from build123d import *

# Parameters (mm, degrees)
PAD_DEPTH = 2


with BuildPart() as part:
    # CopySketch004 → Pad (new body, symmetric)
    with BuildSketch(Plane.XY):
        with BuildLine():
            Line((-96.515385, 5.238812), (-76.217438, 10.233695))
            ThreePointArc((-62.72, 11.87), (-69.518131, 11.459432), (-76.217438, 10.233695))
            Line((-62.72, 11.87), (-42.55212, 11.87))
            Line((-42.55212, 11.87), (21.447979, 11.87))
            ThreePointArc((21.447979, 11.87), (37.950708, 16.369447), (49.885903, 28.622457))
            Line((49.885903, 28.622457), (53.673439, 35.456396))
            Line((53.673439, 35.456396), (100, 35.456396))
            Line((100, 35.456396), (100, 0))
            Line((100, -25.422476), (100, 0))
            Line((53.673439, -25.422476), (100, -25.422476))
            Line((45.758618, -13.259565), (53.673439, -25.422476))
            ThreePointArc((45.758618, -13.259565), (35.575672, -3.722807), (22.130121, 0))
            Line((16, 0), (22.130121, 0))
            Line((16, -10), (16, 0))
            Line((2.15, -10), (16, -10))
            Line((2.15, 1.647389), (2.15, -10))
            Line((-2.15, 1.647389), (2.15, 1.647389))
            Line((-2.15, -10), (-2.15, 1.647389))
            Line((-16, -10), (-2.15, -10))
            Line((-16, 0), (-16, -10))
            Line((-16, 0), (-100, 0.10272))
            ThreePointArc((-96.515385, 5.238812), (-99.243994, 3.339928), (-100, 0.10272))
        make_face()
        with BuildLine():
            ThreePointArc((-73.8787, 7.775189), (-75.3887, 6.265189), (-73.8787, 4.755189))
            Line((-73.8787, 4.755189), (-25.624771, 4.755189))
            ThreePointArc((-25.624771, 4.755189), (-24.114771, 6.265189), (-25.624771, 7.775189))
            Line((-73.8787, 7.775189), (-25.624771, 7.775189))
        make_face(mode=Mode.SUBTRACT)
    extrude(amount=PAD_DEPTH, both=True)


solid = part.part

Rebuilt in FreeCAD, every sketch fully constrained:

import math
import FreeCAD as App
import Part
import Sketcher

V = App.Vector

doc = App.newDocument("Part")
body = doc.addObject("PartDesign::Body", "Body")

sketch1 = doc.addObject("Sketcher::SketchObject", "Sketch")
body.addObject(sketch1)
sketch1.AttachmentSupport = (doc.XY_Plane, [""])
sketch1.MapMode = "FlatFace"
sketch1.addGeometry([
    Part.LineSegment(V(-76.217438, 10.233695, 0), V(-96.515385, 5.238812, 0)),
    Part.ArcOfCircle(Part.Circle(V(-95.407615, 0.737112, 0), V(0, 0, 1), 4.635996), math.radians(103.824565), math.radians(187.865064)),
    Part.LineSegment(V(-100, 0.10272, 0), V(-16, 0, 0)),
    Part.LineSegment(V(-16, 0, 0), V(-16, -10, 0)),
    Part.LineSegment(V(-16, -10, 0), V(-2.15, -10, 0)),
    Part.LineSegment(V(-2.15, -10, 0), V(-2.15, 1.647389, 0)),
    Part.LineSegment(V(-2.15, 1.647389, 0), V(2.15, 1.647389, 0)),
    Part.LineSegment(V(2.15, 1.647389, 0), V(2.15, -10, 0)),
    Part.LineSegment(V(2.15, -10, 0), V(16, -10, 0)),
    Part.LineSegment(V(16, -10, 0), V(16, 0, 0)),
    Part.LineSegment(V(16, 0, 0), V(22.130121, 0, 0)),
    Part.ArcOfCircle(Part.Circle(V(21.28796, -29.183458, 0), V(0, 0, 1), 29.195607), math.radians(33.053429), math.radians(88.347048)),
    Part.LineSegment(V(45.758618, -13.259565, 0), V(53.673439, -25.422476, 0)),
    Part.LineSegment(V(53.673439, -25.422476, 0), V(100, -25.422476, 0)),
    Part.LineSegment(V(100, -25.422476, 0), V(100, 35.456396, 0)),
    Part.LineSegment(V(100, 35.456396, 0), V(53.673439, 35.456396, 0)),
    Part.LineSegment(V(53.673439, 35.456396, 0), V(49.885903, 28.622457, 0)),
    Part.ArcOfCircle(Part.Circle(V(21.447979, 44.38345, 0), V(0, 0, 1), 32.51345), math.radians(-90), math.radians(-28.996292)),
    Part.LineSegment(V(21.447979, 11.87, 0), V(-62.72, 11.87, 0)),
    Part.ArcOfCircle(Part.Circle(V(-62.720006, -44.616462, 0), V(0, 0, 1), 56.486462), math.radians(89.999994), math.radians(103.824568)),
    Part.LineSegment(V(-73.8787, 7.775189, 0), V(-25.624771, 7.775189, 0)),
    Part.ArcOfCircle(Part.Circle(V(-25.624771, 6.265189, 0), V(0, 0, 1), 1.51), math.radians(-90), math.radians(90)),
    Part.LineSegment(V(-25.624771, 4.755189, 0), V(-73.8787, 4.755189, 0)),
    Part.ArcOfCircle(Part.Circle(V(-73.8787, 6.265189, 0), V(0, 0, 1), 1.51), math.radians(90), math.radians(270)),
], False)
sketch1.addConstraint([
    Sketcher.Constraint("Coincident", 0, 2, 1, 1),
    Sketcher.Constraint("Coincident", 1, 2, 2, 1),
    Sketcher.Constraint("Coincident", 2, 2, 3, 1),
    Sketcher.Constraint("Coincident", 3, 2, 4, 1),
    Sketcher.Constraint("Coincident", 4, 2, 5, 1),
    Sketcher.Constraint("Coincident", 5, 2, 6, 1),
    Sketcher.Constraint("Coincident", 6, 2, 7, 1),
    Sketcher.Constraint("Coincident", 7, 2, 8, 1),
    Sketcher.Constraint("Coincident", 8, 2, 9, 1),
    Sketcher.Constraint("Coincident", 9, 2, 10, 1),
    Sketcher.Constraint("Coincident", 10, 2, 11, 2),
    Sketcher.Constraint("Coincident", 11, 1, 12, 1),
    Sketcher.Constraint("Coincident", 12, 2, 13, 1),
    Sketcher.Constraint("Coincident", 13, 2, 14, 1),
    Sketcher.Constraint("Coincident", 14, 2, 15, 1),
    Sketcher.Constraint("Coincident", 15, 2, 16, 1),
    Sketcher.Constraint("Coincident", 16, 2, 17, 2),
    Sketcher.Constraint("Coincident", 17, 1, 18, 1),
    Sketcher.Constraint("Coincident", 18, 2, 19, 1),
    Sketcher.Constraint("Coincident", 19, 2, 0, 1),
    Sketcher.Constraint("Coincident", 20, 2, 21, 2),
    Sketcher.Constraint("Coincident", 21, 1, 22, 1),
    Sketcher.Constraint("Coincident", 22, 2, 23, 2),
    Sketcher.Constraint("Coincident", 23, 1, 20, 1),
    Sketcher.Constraint("Vertical", 3),
    Sketcher.Constraint("Horizontal", 4),
    Sketcher.Constraint("Vertical", 5),
    Sketcher.Constraint("Horizontal", 6),
    Sketcher.Constraint("Vertical", 7),
    Sketcher.Constraint("Horizontal", 8),
    Sketcher.Constraint("Vertical", 9),
    Sketcher.Constraint("Horizontal", 10),
    Sketcher.Constraint("Horizontal", 13),
    Sketcher.Constraint("Vertical", 14),
    Sketcher.Constraint("Horizontal", 15),
    Sketcher.Constraint("Horizontal", 18),
    Sketcher.Constraint("Horizontal", 20),
    Sketcher.Constraint("Horizontal", 22),
    Sketcher.Constraint("PointOnObject", 2, 2, -1),
    Sketcher.Constraint("PointOnObject", 9, 2, -1),
    Sketcher.Constraint("DistanceY", 3, 2, 3, 1, 10.0),
    Sketcher.Constraint("DistanceY", 9, 1, 9, 2, 10.0),
    Sketcher.Constraint("Radius", 21, 1.51),
    Sketcher.Constraint("DistanceX", 6, 1, 6, 2, 4.3),
    Sketcher.Constraint("DistanceX", 1, 2, -1, 1, 100.0),
    Sketcher.Constraint("DistanceX", 2, 2, -1, 1, 16.0),
    Sketcher.Constraint("DistanceX", -1, 1, 8, 2, 16.0),
    Sketcher.Constraint("DistanceX", -1, 1, 13, 2, 100.0),
    Sketcher.Constraint("DistanceX", 4, 1, 4, 2, 13.85),
    Sketcher.Constraint("DistanceY", -1, 1, 17, 1, 11.87),
    Sketcher.Constraint("DistanceX", 18, 2, -1, 1, 62.72),
    Sketcher.Constraint("Radius", 17, 32.51345),
    Sketcher.Constraint("Radius", 19, 56.486462),
    Sketcher.Constraint("Radius", 1, 4.635996),
    Sketcher.Constraint("Radius", 11, 29.195607),
    Sketcher.Constraint("DistanceX", 10, 1, 10, 2, 6.130121),
    Sketcher.Constraint("DistanceX", 13, 1, 13, 2, 46.326561),
    Sketcher.Constraint("DistanceX", 15, 2, 15, 1, 46.326561),
    Sketcher.Constraint("DistanceX", 18, 2, 18, 1, 84.167979),
    Sketcher.Constraint("DistanceX", 20, 1, 20, 2, 48.253929),
    Sketcher.Constraint("DistanceX", 22, 2, 22, 1, 48.253929),
    Sketcher.Constraint("DistanceY", 5, 1, 5, 2, 11.647389),
    Sketcher.Constraint("DistanceX", 23, 3, -1, 1, 73.8787),
    Sketcher.Constraint("DistanceX", 22, 2, -1, 1, 73.8787),
    Sketcher.Constraint("DistanceX", 23, 1, -1, 1, 73.8787),
    Sketcher.Constraint("DistanceY", 1, 3, 0, 2, 4.5017),
    Sketcher.Constraint("DistanceY", 5, 2, 21, 3, 4.6178),
    Sketcher.Constraint("Distance", 0, 20.903481),
    Sketcher.Constraint("Distance", 16, 7.813332),
    Sketcher.Constraint("DistanceY", 14, 1, 14, 2, 60.878872),
    Sketcher.Constraint("DistanceX", -1, 1, 11, 3, 21.28796),
    Sketcher.Constraint("DistanceX", -1, 1, 17, 3, 21.447979),
    Sketcher.Constraint("DistanceX", 21, 3, -1, 1, 25.624771),
    Sketcher.Constraint("DistanceY", -1, 1, 1, 2, 0.10272),
    Sketcher.Constraint("DistanceY", 11, 3, 1, 3, 29.92057),
    Sketcher.Constraint("DistanceX", 1, 3, 19, 3, 32.687609),
    Sketcher.Constraint("DistanceX", 11, 1, 12, 2, 7.914821),
    Sketcher.Constraint("DistanceY", 12, 2, 11, 1, 12.162911),
])
pad1 = doc.addObject("PartDesign::Pad", "Pad")
body.addObject(pad1)
pad1.Profile = sketch1
pad1.Length = 4
pad1.Midplane = True

doc.recompute()
